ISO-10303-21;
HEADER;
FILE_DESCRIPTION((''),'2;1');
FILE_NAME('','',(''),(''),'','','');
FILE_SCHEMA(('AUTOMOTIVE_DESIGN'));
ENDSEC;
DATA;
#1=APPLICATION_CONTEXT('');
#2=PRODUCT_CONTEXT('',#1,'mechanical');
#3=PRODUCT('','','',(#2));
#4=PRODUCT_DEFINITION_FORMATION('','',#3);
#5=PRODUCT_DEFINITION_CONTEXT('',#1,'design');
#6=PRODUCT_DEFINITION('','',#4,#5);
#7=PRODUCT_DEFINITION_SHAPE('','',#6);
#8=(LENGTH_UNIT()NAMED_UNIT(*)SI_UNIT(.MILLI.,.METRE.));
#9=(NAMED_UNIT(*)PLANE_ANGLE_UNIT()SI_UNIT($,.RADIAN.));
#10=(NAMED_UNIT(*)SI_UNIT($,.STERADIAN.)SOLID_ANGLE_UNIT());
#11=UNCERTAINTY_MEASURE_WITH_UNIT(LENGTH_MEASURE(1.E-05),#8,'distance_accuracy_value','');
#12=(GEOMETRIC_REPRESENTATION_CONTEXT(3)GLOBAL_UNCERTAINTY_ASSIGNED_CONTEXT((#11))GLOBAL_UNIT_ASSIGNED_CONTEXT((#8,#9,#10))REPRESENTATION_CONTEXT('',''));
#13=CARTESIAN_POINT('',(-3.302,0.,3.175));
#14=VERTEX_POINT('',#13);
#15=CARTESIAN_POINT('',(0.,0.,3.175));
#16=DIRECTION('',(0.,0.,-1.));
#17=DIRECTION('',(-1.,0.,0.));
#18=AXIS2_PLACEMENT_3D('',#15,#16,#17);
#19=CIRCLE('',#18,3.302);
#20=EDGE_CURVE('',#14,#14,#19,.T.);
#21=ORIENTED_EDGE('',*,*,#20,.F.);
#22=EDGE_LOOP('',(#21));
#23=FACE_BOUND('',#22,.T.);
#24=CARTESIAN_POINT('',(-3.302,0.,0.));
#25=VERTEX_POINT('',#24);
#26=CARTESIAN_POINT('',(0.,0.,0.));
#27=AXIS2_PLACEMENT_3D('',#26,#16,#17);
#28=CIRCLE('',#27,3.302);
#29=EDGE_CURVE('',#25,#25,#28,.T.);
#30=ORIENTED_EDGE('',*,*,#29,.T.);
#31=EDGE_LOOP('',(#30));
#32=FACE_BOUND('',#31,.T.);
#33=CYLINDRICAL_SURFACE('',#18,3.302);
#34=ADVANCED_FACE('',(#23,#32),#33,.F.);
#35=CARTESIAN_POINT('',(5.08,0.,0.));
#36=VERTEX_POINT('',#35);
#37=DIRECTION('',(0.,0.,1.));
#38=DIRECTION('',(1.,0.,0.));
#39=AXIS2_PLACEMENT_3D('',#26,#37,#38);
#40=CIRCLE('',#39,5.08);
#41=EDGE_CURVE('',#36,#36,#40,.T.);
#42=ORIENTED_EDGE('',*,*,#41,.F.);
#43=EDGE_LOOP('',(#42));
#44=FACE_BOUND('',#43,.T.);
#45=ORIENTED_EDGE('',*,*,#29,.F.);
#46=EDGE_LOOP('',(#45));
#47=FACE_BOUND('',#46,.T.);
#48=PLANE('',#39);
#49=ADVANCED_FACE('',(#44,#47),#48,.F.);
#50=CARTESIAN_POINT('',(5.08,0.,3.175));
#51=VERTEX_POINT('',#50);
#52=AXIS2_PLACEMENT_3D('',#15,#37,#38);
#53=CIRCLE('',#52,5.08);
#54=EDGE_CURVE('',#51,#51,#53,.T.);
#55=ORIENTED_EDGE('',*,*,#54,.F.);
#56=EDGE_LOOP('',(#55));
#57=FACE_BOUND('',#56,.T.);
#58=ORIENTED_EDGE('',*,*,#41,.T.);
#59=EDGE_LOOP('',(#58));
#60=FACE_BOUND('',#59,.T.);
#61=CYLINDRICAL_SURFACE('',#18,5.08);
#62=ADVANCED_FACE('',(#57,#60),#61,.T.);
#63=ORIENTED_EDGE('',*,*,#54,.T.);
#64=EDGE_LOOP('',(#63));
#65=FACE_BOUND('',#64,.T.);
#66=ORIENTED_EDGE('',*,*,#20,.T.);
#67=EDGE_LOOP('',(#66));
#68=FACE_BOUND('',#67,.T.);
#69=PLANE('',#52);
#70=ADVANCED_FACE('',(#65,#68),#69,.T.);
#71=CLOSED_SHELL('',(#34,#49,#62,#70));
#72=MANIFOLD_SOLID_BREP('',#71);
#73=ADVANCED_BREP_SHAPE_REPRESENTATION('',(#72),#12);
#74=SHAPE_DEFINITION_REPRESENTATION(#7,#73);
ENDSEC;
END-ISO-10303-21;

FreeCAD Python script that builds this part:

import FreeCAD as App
import Part
import Sketcher
Q = App.Units.Quantity

doc = App.newDocument("Part")
body = doc.addObject("PartDesign::Body", "Body")

sketch1 = body.newObject("Sketcher::SketchObject", "Sketch")
sketch1.AttachmentSupport = (doc.getObject("XY_Plane"), [""])
sketch1.MapMode = "FlatFace"
sketch1.addGeometry(Part.Circle(App.Vector(0, 0, 0), App.Vector(0, 0, 1), 5.08), False)
sketch1.addConstraint([
    Sketcher.Constraint("Coincident", 0, 3, -1, 1),
    Sketcher.Constraint("Diameter", 0, Q("0.4 in")),
])
pad1 = body.newObject("PartDesign::Pad", "Pad")
pad1.Profile = sketch1
pad1.Length = Q("0.125 in")

sketch2 = body.newObject("Sketcher::SketchObject", "Sketch001")
sketch2.AttachmentSupport = (doc.getObject("XY_Plane"), [""])
sketch2.MapMode = "FlatFace"
sketch2.addGeometry(Part.Circle(App.Vector(0, 0, 0), App.Vector(0, 0, 1), 3.302), False)
sketch2.addConstraint([
    Sketcher.Constraint("Coincident", 0, 3, -1, 1),
    Sketcher.Constraint("Diameter", 0, Q("0.26 in")),
])
pocket1 = body.newObject("PartDesign::Pocket", "Pocket")
pocket1.Profile = sketch2
pocket1.Type = "ThroughAll"
pocket1.Reversed = True

doc.recompute()
